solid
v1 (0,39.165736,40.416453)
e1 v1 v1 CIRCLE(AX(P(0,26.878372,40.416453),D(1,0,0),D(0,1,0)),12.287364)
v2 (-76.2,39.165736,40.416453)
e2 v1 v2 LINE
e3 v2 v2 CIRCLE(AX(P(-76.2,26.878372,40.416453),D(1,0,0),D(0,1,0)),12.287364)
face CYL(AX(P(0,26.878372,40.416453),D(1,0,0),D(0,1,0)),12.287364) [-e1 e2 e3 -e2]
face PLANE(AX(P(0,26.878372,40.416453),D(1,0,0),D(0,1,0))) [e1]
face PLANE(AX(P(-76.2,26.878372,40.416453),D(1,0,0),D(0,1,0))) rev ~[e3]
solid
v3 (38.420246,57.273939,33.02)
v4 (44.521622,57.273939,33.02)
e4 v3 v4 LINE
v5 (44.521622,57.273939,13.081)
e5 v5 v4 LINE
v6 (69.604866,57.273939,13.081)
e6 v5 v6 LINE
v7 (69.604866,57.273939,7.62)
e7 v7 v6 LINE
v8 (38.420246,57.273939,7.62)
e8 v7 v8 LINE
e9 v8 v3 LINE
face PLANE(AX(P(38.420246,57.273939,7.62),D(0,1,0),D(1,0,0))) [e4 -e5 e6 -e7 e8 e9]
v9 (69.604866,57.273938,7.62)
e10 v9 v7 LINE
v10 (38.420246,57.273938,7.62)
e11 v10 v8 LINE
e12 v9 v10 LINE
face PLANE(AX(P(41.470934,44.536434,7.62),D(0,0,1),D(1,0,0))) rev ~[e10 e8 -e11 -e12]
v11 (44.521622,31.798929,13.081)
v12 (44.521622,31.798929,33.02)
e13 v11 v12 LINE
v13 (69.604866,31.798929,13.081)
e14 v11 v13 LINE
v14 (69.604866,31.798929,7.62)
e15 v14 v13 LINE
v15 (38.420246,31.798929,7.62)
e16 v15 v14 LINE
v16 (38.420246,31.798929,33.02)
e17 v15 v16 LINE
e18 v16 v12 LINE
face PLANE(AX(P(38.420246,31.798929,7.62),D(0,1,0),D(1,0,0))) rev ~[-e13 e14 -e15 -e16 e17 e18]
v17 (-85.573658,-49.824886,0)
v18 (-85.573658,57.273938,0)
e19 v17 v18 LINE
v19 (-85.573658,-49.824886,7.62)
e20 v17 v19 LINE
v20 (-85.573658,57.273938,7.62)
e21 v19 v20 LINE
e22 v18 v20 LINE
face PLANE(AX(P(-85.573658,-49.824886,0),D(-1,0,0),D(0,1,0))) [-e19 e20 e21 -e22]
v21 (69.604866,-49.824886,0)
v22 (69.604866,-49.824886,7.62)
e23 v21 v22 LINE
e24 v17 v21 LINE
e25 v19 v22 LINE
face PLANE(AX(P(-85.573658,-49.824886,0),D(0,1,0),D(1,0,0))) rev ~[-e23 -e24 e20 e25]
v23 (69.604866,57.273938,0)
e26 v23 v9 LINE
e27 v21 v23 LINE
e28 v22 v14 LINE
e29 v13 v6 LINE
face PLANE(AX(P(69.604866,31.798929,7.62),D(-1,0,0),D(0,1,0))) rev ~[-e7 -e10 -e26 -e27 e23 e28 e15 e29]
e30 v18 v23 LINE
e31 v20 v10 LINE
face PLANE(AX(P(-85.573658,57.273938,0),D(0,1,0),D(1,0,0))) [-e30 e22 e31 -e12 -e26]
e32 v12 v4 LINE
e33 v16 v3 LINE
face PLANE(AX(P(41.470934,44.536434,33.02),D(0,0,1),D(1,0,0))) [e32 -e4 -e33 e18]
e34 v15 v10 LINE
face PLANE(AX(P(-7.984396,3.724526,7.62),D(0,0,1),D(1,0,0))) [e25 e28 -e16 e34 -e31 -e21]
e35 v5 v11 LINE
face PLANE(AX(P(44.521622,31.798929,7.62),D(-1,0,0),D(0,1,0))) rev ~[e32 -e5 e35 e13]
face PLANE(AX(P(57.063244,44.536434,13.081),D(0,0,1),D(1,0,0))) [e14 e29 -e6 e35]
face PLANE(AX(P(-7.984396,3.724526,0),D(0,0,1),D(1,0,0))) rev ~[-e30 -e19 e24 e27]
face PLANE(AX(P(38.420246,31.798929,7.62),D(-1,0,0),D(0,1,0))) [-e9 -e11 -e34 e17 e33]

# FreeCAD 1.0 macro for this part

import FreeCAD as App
import Part
import Sketcher

V = App.Vector


def add_polygon(sketch, points):
    """Adds a closed chain of lines whose ends are joined by coincident constraints."""
    first, n = sketch.GeometryCount, len(points)
    for a, b in zip(points, points[1:] + points[:1]):
        sketch.addGeometry(Part.LineSegment(App.Vector(*a, 0), App.Vector(*b, 0)), False)
    for i in range(n):
        sketch.addConstraint(Sketcher.Constraint("Coincident", first + i, 2, first + (i + 1) % n, 1))

doc = App.newDocument("Part")
params = doc.addObject("Spreadsheet::Sheet", "Params")
for row, (alias, value) in enumerate([
    ("pad1_length", "0.3 in"),
    ("pad2_length", "0.215 in"),
    ("pad3_length", "1 in"),
    ("pad4_length", "3 in"),
], start=1):
    params.set(f"A{row}", alias)
    params.set(f"B{row}", "=" + value)
    params.setAlias(f"B{row}", alias)

body = doc.addObject("PartDesign::Body", "Body")

# Sketch on XY plane
sketch1 = body.newObject("Sketcher::SketchObject", "Sketch")
sketch1.AttachmentSupport = (doc.getObject("XY_Plane"), [""])
sketch1.MapMode = "FlatFace"
add_polygon(sketch1, [(-85.573658, 57.273938), (-85.573658, -49.824886), (69.604866, -49.824886), (69.604866, 57.273938)])  # lines 0-3
sketch1.addConstraint([
    Sketcher.Constraint("Vertical", 0),
    Sketcher.Constraint("Horizontal", 1),
    Sketcher.Constraint("Vertical", 2),
    Sketcher.Constraint("Horizontal", 3),
    Sketcher.Constraint("DistanceX", 1, 1, 1, 2, 155.178524),
    Sketcher.Constraint("DistanceY", 0, 2, 0, 1, 107.098825),
    Sketcher.Constraint("DistanceY", -1, 1, 2, 2, 57.273938),
    Sketcher.Constraint("DistanceX", 0, 2, -1, 1, 85.573658),
])
pad1 = body.newObject("PartDesign::Pad", "Pad")
pad1.Profile = sketch1
pad1.setExpression("Length", "Params.pad1_length")

# Sketch on XY plane
sketch2 = body.newObject("Sketcher::SketchObject", "Sketch001")
sketch2.AttachmentSupport = (doc.getObject("XY_Plane"), [""])
sketch2.MapMode = "FlatFace"
sketch2.AttachmentOffset = App.Placement(V(0, 0, 0.3 * 25.4), App.Rotation())
add_polygon(sketch2, [(44.521622, 57.273939), (44.521622, 31.798929), (69.604866, 31.798929), (69.604866, 57.273939)])  # lines 0-3
sketch2.addConstraint([
    Sketcher.Constraint("Vertical", 0),
    Sketcher.Constraint("Horizontal", 1),
    Sketcher.Constraint("Vertical", 2),
    Sketcher.Constraint("Horizontal", 3),
    Sketcher.Constraint("DistanceY", 0, 2, 0, 1, 25.47501),
    Sketcher.Constraint("DistanceX", 1, 1, 1, 2, 25.083244),
    Sketcher.Constraint("DistanceY", -1, 1, 0, 2, 31.798929),
    Sketcher.Constraint("DistanceX", -1, 1, 0, 2, 44.521622),
])
pad2 = body.newObject("PartDesign::Pad", "Pad001")
pad2.Profile = sketch2
pad2.setExpression("Length", "Params.pad2_length")

# Sketch on XY plane
sketch3 = body.newObject("Sketcher::SketchObject", "Sketch002")
sketch3.AttachmentSupport = (doc.getObject("XY_Plane"), [""])
sketch3.MapMode = "FlatFace"
sketch3.AttachmentOffset = App.Placement(V(0, 0, 0.3 * 25.4), App.Rotation())
add_polygon(sketch3, [(38.420246, 57.273939), (38.420246, 31.798929), (44.521622, 31.798929), (44.521622, 57.273939)])  # lines 0-3
sketch3.addConstraint([
    Sketcher.Constraint("Vertical", 0),
    Sketcher.Constraint("Horizontal", 1),
    Sketcher.Constraint("Vertical", 2),
    Sketcher.Constraint("Horizontal", 3),
    Sketcher.Constraint("DistanceY", 0, 2, 0, 1, 25.47501),
    Sketcher.Constraint("DistanceX", 1, 1, 1, 2, 6.101377),
    Sketcher.Constraint("DistanceY", -1, 1, 0, 2, 31.798929),
    Sketcher.Constraint("DistanceX", -1, 1, 0, 2, 38.420246),
])
pad3 = body.newObject("PartDesign::Pad", "Pad002")
pad3.Profile = sketch3
pad3.setExpression("Length", "Params.pad3_length")
body2 = doc.addObject("PartDesign::Body", "Body001")

# Sketch on YZ plane
sketch4 = body2.newObject("Sketcher::SketchObject", "Sketch003")
sketch4.AttachmentSupport = (doc.getObject("YZ_Plane001"), [""])
sketch4.MapMode = "FlatFace"
sketch4.addGeometry(Part.Circle(V(26.878372, 40.416453, 0), V(0, 0, 1), 12.287364), False)
sketch4.addConstraint([
    Sketcher.Constraint("Diameter", 0, 24.574728),
    Sketcher.Constraint("DistanceX", -1, 1, 0, 3, 26.878372),
    Sketcher.Constraint("DistanceY", -1, 1, 0, 3, 40.416453),
])
pad4 = body2.newObject("PartDesign::Pad", "Pad003")
pad4.Profile = sketch4
pad4.setExpression("Length", "Params.pad4_length")
pad4.Reversed = True

doc.recompute()
